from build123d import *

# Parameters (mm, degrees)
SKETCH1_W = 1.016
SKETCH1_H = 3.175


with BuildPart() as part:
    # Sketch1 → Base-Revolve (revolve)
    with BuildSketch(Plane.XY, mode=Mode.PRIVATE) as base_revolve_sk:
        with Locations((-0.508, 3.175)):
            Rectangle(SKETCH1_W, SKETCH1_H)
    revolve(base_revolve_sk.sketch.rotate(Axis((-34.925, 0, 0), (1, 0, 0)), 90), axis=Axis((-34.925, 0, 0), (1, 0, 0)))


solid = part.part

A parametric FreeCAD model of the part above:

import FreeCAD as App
import Part
import Sketcher
Q = App.Units.Quantity


def add_polygon(sketch, points):
    """Adds a closed chain of lines whose ends are joined by coincident constraints."""
    first, n = sketch.GeometryCount, len(points)
    for a, b in zip(points, points[1:] + points[:1]):
        sketch.addGeometry(Part.LineSegment(App.Vector(*a, 0), App.Vector(*b, 0)), False)
    for i in range(n):
        sketch.addConstraint(Sketcher.Constraint("Coincident", first + i, 2, first + (i + 1) % n, 1))

doc = App.newDocument("Part")
body = doc.addObject("PartDesign::Body", "Body")

sketch1 = doc.addObject("Sketcher::SketchObject", "Sketch")
body.addObject(sketch1)
sketch1.AttachmentSupport = (doc.XY_Plane, [""])
sketch1.MapMode = "FlatFace"
add_polygon(sketch1, [(-1, 4.8), (-1, 1.6), (0, 1.6), (0, 4.8)])
sketch1.addConstraint([
    Sketcher.Constraint("Vertical", 0),
    Sketcher.Constraint("Horizontal", 1),
    Sketcher.Constraint("Vertical", 2),
    Sketcher.Constraint("Horizontal", 3),
    Sketcher.Constraint("PointOnObject", 1, 2, -2),
    Sketcher.Constraint("DistanceX", 1, 1, 1, 2, Q("0.04 in")),
    Sketcher.Constraint("DistanceY", 0, 2, 0, 1, Q("0.125 in")),
    Sketcher.Constraint("DistanceY", -1, 1, 0, 2, Q("0.0625 in")),
])
revolution = doc.addObject("PartDesign::Revolution", "Revolution")
body.addObject(revolution)
revolution.Profile = sketch1
revolution.ReferenceAxis = (sketch1, ["H_Axis"])
revolution.Angle = 360

doc.recompute()
